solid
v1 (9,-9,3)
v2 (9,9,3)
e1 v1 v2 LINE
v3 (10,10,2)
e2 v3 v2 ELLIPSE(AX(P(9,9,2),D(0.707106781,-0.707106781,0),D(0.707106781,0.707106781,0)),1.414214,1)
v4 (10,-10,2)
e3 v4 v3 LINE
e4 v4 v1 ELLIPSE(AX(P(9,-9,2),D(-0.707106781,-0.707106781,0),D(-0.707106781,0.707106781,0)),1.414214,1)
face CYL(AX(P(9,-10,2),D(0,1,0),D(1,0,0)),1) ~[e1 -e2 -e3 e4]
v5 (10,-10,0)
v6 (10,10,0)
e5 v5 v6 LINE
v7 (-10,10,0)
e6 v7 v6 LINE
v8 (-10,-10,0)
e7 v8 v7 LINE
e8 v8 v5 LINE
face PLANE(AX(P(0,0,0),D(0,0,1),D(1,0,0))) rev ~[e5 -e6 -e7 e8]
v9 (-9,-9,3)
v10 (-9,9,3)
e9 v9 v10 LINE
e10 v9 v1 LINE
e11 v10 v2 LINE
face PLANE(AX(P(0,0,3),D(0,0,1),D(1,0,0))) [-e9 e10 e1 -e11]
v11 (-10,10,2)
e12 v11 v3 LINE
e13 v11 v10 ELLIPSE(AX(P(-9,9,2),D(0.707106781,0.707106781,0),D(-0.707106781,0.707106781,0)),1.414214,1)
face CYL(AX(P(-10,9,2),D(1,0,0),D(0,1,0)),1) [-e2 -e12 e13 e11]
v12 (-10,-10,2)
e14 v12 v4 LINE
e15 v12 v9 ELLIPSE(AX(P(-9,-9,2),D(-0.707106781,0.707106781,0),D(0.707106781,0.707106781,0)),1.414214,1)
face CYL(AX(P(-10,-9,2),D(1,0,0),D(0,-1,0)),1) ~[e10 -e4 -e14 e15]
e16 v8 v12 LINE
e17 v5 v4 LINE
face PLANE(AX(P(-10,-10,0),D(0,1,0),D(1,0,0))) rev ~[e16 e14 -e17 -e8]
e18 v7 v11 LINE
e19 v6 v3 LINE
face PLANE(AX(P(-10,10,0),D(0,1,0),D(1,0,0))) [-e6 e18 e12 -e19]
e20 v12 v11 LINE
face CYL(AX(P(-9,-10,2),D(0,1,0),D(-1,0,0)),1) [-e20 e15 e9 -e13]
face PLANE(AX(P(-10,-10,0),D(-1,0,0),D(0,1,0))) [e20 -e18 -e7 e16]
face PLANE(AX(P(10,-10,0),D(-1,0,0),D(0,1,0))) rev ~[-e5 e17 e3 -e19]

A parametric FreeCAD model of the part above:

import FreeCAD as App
import Part
import Sketcher
from FreeCAD import Vector
Q = App.Units.Quantity


def edges_at(feature, points):
    """Names of the edges that pass closest to the given points."""
    edges = feature.Shape.Edges
    near = lambda p: min(range(len(edges)), key=lambda i: edges[i].distToShape(Part.Vertex(*p))[0])
    return sorted({f"Edge{near(p) + 1}" for p in points})

doc = App.newDocument("Part")
params = doc.addObject("Spreadsheet::Sheet", "Params")
for row, (alias, value) in enumerate([
    ("sketch1_width", "20 mm"),
    ("pad1_length", "3 mm"),
    ("fillet_radius", "1 mm"),
], start=1):
    params.set(f"A{row}", alias)
    params.set(f"B{row}", "=" + value)
    params.setAlias(f"B{row}", alias)

body = doc.addObject("PartDesign::Body", "Body")

# Sketch on XY plane
sketch1 = body.newObject("Sketcher::SketchObject", "Sketch")
sketch1.AttachmentSupport = (doc.getObject("XY_Plane"), [""])
sketch1.MapMode = "FlatFace"
sketch1.addGeometry([
    Part.LineSegment(Vector(-10, 10, 0), Vector(-10, -10, 0)),
    Part.LineSegment(Vector(-10, -10, 0), Vector(10, -10, 0)),
    Part.LineSegment(Vector(10, -10, 0), Vector(10, 10, 0)),
    Part.LineSegment(Vector(10, 10, 0), Vector(-10, 10, 0)),
], False)
sketch1.addConstraint([
    Sketcher.Constraint("Coincident", 0, 2, 1, 1),
    Sketcher.Constraint("Coincident", 1, 2, 2, 1),
    Sketcher.Constraint("Coincident", 2, 2, 3, 1),
    Sketcher.Constraint("Coincident", 3, 2, 0, 1),
    Sketcher.Constraint("Vertical", 0),
    Sketcher.Constraint("Horizontal", 1),
    Sketcher.Constraint("Vertical", 2),
    Sketcher.Constraint("Horizontal", 3),
    Sketcher.Constraint("Symmetric", 0, 2, 2, 2, -1, 1),
    Sketcher.Constraint("Equal", 3, 0),
    Sketcher.Constraint("DistanceX", 1, 1, 1, 2, Q("20 mm")),
])
sketch1.setExpression("Constraints[10]", "Params.sketch1_width")
pad1 = body.newObject("PartDesign::Pad", "Pad")
pad1.Profile = sketch1
pad1.setExpression("Length", "Params.pad1_length")
doc.recompute()

fillet = body.newObject("PartDesign::Fillet", "Fillet")
fillet.Base = (pad1, edges_at(pad1, [
    (10, 0, 3),
    (0, -10, 3),
    (-10, 0, 3),
    (0, 10, 3),
]))
fillet.setExpression("Radius", "Params.fillet_radius")

doc.recompute()
